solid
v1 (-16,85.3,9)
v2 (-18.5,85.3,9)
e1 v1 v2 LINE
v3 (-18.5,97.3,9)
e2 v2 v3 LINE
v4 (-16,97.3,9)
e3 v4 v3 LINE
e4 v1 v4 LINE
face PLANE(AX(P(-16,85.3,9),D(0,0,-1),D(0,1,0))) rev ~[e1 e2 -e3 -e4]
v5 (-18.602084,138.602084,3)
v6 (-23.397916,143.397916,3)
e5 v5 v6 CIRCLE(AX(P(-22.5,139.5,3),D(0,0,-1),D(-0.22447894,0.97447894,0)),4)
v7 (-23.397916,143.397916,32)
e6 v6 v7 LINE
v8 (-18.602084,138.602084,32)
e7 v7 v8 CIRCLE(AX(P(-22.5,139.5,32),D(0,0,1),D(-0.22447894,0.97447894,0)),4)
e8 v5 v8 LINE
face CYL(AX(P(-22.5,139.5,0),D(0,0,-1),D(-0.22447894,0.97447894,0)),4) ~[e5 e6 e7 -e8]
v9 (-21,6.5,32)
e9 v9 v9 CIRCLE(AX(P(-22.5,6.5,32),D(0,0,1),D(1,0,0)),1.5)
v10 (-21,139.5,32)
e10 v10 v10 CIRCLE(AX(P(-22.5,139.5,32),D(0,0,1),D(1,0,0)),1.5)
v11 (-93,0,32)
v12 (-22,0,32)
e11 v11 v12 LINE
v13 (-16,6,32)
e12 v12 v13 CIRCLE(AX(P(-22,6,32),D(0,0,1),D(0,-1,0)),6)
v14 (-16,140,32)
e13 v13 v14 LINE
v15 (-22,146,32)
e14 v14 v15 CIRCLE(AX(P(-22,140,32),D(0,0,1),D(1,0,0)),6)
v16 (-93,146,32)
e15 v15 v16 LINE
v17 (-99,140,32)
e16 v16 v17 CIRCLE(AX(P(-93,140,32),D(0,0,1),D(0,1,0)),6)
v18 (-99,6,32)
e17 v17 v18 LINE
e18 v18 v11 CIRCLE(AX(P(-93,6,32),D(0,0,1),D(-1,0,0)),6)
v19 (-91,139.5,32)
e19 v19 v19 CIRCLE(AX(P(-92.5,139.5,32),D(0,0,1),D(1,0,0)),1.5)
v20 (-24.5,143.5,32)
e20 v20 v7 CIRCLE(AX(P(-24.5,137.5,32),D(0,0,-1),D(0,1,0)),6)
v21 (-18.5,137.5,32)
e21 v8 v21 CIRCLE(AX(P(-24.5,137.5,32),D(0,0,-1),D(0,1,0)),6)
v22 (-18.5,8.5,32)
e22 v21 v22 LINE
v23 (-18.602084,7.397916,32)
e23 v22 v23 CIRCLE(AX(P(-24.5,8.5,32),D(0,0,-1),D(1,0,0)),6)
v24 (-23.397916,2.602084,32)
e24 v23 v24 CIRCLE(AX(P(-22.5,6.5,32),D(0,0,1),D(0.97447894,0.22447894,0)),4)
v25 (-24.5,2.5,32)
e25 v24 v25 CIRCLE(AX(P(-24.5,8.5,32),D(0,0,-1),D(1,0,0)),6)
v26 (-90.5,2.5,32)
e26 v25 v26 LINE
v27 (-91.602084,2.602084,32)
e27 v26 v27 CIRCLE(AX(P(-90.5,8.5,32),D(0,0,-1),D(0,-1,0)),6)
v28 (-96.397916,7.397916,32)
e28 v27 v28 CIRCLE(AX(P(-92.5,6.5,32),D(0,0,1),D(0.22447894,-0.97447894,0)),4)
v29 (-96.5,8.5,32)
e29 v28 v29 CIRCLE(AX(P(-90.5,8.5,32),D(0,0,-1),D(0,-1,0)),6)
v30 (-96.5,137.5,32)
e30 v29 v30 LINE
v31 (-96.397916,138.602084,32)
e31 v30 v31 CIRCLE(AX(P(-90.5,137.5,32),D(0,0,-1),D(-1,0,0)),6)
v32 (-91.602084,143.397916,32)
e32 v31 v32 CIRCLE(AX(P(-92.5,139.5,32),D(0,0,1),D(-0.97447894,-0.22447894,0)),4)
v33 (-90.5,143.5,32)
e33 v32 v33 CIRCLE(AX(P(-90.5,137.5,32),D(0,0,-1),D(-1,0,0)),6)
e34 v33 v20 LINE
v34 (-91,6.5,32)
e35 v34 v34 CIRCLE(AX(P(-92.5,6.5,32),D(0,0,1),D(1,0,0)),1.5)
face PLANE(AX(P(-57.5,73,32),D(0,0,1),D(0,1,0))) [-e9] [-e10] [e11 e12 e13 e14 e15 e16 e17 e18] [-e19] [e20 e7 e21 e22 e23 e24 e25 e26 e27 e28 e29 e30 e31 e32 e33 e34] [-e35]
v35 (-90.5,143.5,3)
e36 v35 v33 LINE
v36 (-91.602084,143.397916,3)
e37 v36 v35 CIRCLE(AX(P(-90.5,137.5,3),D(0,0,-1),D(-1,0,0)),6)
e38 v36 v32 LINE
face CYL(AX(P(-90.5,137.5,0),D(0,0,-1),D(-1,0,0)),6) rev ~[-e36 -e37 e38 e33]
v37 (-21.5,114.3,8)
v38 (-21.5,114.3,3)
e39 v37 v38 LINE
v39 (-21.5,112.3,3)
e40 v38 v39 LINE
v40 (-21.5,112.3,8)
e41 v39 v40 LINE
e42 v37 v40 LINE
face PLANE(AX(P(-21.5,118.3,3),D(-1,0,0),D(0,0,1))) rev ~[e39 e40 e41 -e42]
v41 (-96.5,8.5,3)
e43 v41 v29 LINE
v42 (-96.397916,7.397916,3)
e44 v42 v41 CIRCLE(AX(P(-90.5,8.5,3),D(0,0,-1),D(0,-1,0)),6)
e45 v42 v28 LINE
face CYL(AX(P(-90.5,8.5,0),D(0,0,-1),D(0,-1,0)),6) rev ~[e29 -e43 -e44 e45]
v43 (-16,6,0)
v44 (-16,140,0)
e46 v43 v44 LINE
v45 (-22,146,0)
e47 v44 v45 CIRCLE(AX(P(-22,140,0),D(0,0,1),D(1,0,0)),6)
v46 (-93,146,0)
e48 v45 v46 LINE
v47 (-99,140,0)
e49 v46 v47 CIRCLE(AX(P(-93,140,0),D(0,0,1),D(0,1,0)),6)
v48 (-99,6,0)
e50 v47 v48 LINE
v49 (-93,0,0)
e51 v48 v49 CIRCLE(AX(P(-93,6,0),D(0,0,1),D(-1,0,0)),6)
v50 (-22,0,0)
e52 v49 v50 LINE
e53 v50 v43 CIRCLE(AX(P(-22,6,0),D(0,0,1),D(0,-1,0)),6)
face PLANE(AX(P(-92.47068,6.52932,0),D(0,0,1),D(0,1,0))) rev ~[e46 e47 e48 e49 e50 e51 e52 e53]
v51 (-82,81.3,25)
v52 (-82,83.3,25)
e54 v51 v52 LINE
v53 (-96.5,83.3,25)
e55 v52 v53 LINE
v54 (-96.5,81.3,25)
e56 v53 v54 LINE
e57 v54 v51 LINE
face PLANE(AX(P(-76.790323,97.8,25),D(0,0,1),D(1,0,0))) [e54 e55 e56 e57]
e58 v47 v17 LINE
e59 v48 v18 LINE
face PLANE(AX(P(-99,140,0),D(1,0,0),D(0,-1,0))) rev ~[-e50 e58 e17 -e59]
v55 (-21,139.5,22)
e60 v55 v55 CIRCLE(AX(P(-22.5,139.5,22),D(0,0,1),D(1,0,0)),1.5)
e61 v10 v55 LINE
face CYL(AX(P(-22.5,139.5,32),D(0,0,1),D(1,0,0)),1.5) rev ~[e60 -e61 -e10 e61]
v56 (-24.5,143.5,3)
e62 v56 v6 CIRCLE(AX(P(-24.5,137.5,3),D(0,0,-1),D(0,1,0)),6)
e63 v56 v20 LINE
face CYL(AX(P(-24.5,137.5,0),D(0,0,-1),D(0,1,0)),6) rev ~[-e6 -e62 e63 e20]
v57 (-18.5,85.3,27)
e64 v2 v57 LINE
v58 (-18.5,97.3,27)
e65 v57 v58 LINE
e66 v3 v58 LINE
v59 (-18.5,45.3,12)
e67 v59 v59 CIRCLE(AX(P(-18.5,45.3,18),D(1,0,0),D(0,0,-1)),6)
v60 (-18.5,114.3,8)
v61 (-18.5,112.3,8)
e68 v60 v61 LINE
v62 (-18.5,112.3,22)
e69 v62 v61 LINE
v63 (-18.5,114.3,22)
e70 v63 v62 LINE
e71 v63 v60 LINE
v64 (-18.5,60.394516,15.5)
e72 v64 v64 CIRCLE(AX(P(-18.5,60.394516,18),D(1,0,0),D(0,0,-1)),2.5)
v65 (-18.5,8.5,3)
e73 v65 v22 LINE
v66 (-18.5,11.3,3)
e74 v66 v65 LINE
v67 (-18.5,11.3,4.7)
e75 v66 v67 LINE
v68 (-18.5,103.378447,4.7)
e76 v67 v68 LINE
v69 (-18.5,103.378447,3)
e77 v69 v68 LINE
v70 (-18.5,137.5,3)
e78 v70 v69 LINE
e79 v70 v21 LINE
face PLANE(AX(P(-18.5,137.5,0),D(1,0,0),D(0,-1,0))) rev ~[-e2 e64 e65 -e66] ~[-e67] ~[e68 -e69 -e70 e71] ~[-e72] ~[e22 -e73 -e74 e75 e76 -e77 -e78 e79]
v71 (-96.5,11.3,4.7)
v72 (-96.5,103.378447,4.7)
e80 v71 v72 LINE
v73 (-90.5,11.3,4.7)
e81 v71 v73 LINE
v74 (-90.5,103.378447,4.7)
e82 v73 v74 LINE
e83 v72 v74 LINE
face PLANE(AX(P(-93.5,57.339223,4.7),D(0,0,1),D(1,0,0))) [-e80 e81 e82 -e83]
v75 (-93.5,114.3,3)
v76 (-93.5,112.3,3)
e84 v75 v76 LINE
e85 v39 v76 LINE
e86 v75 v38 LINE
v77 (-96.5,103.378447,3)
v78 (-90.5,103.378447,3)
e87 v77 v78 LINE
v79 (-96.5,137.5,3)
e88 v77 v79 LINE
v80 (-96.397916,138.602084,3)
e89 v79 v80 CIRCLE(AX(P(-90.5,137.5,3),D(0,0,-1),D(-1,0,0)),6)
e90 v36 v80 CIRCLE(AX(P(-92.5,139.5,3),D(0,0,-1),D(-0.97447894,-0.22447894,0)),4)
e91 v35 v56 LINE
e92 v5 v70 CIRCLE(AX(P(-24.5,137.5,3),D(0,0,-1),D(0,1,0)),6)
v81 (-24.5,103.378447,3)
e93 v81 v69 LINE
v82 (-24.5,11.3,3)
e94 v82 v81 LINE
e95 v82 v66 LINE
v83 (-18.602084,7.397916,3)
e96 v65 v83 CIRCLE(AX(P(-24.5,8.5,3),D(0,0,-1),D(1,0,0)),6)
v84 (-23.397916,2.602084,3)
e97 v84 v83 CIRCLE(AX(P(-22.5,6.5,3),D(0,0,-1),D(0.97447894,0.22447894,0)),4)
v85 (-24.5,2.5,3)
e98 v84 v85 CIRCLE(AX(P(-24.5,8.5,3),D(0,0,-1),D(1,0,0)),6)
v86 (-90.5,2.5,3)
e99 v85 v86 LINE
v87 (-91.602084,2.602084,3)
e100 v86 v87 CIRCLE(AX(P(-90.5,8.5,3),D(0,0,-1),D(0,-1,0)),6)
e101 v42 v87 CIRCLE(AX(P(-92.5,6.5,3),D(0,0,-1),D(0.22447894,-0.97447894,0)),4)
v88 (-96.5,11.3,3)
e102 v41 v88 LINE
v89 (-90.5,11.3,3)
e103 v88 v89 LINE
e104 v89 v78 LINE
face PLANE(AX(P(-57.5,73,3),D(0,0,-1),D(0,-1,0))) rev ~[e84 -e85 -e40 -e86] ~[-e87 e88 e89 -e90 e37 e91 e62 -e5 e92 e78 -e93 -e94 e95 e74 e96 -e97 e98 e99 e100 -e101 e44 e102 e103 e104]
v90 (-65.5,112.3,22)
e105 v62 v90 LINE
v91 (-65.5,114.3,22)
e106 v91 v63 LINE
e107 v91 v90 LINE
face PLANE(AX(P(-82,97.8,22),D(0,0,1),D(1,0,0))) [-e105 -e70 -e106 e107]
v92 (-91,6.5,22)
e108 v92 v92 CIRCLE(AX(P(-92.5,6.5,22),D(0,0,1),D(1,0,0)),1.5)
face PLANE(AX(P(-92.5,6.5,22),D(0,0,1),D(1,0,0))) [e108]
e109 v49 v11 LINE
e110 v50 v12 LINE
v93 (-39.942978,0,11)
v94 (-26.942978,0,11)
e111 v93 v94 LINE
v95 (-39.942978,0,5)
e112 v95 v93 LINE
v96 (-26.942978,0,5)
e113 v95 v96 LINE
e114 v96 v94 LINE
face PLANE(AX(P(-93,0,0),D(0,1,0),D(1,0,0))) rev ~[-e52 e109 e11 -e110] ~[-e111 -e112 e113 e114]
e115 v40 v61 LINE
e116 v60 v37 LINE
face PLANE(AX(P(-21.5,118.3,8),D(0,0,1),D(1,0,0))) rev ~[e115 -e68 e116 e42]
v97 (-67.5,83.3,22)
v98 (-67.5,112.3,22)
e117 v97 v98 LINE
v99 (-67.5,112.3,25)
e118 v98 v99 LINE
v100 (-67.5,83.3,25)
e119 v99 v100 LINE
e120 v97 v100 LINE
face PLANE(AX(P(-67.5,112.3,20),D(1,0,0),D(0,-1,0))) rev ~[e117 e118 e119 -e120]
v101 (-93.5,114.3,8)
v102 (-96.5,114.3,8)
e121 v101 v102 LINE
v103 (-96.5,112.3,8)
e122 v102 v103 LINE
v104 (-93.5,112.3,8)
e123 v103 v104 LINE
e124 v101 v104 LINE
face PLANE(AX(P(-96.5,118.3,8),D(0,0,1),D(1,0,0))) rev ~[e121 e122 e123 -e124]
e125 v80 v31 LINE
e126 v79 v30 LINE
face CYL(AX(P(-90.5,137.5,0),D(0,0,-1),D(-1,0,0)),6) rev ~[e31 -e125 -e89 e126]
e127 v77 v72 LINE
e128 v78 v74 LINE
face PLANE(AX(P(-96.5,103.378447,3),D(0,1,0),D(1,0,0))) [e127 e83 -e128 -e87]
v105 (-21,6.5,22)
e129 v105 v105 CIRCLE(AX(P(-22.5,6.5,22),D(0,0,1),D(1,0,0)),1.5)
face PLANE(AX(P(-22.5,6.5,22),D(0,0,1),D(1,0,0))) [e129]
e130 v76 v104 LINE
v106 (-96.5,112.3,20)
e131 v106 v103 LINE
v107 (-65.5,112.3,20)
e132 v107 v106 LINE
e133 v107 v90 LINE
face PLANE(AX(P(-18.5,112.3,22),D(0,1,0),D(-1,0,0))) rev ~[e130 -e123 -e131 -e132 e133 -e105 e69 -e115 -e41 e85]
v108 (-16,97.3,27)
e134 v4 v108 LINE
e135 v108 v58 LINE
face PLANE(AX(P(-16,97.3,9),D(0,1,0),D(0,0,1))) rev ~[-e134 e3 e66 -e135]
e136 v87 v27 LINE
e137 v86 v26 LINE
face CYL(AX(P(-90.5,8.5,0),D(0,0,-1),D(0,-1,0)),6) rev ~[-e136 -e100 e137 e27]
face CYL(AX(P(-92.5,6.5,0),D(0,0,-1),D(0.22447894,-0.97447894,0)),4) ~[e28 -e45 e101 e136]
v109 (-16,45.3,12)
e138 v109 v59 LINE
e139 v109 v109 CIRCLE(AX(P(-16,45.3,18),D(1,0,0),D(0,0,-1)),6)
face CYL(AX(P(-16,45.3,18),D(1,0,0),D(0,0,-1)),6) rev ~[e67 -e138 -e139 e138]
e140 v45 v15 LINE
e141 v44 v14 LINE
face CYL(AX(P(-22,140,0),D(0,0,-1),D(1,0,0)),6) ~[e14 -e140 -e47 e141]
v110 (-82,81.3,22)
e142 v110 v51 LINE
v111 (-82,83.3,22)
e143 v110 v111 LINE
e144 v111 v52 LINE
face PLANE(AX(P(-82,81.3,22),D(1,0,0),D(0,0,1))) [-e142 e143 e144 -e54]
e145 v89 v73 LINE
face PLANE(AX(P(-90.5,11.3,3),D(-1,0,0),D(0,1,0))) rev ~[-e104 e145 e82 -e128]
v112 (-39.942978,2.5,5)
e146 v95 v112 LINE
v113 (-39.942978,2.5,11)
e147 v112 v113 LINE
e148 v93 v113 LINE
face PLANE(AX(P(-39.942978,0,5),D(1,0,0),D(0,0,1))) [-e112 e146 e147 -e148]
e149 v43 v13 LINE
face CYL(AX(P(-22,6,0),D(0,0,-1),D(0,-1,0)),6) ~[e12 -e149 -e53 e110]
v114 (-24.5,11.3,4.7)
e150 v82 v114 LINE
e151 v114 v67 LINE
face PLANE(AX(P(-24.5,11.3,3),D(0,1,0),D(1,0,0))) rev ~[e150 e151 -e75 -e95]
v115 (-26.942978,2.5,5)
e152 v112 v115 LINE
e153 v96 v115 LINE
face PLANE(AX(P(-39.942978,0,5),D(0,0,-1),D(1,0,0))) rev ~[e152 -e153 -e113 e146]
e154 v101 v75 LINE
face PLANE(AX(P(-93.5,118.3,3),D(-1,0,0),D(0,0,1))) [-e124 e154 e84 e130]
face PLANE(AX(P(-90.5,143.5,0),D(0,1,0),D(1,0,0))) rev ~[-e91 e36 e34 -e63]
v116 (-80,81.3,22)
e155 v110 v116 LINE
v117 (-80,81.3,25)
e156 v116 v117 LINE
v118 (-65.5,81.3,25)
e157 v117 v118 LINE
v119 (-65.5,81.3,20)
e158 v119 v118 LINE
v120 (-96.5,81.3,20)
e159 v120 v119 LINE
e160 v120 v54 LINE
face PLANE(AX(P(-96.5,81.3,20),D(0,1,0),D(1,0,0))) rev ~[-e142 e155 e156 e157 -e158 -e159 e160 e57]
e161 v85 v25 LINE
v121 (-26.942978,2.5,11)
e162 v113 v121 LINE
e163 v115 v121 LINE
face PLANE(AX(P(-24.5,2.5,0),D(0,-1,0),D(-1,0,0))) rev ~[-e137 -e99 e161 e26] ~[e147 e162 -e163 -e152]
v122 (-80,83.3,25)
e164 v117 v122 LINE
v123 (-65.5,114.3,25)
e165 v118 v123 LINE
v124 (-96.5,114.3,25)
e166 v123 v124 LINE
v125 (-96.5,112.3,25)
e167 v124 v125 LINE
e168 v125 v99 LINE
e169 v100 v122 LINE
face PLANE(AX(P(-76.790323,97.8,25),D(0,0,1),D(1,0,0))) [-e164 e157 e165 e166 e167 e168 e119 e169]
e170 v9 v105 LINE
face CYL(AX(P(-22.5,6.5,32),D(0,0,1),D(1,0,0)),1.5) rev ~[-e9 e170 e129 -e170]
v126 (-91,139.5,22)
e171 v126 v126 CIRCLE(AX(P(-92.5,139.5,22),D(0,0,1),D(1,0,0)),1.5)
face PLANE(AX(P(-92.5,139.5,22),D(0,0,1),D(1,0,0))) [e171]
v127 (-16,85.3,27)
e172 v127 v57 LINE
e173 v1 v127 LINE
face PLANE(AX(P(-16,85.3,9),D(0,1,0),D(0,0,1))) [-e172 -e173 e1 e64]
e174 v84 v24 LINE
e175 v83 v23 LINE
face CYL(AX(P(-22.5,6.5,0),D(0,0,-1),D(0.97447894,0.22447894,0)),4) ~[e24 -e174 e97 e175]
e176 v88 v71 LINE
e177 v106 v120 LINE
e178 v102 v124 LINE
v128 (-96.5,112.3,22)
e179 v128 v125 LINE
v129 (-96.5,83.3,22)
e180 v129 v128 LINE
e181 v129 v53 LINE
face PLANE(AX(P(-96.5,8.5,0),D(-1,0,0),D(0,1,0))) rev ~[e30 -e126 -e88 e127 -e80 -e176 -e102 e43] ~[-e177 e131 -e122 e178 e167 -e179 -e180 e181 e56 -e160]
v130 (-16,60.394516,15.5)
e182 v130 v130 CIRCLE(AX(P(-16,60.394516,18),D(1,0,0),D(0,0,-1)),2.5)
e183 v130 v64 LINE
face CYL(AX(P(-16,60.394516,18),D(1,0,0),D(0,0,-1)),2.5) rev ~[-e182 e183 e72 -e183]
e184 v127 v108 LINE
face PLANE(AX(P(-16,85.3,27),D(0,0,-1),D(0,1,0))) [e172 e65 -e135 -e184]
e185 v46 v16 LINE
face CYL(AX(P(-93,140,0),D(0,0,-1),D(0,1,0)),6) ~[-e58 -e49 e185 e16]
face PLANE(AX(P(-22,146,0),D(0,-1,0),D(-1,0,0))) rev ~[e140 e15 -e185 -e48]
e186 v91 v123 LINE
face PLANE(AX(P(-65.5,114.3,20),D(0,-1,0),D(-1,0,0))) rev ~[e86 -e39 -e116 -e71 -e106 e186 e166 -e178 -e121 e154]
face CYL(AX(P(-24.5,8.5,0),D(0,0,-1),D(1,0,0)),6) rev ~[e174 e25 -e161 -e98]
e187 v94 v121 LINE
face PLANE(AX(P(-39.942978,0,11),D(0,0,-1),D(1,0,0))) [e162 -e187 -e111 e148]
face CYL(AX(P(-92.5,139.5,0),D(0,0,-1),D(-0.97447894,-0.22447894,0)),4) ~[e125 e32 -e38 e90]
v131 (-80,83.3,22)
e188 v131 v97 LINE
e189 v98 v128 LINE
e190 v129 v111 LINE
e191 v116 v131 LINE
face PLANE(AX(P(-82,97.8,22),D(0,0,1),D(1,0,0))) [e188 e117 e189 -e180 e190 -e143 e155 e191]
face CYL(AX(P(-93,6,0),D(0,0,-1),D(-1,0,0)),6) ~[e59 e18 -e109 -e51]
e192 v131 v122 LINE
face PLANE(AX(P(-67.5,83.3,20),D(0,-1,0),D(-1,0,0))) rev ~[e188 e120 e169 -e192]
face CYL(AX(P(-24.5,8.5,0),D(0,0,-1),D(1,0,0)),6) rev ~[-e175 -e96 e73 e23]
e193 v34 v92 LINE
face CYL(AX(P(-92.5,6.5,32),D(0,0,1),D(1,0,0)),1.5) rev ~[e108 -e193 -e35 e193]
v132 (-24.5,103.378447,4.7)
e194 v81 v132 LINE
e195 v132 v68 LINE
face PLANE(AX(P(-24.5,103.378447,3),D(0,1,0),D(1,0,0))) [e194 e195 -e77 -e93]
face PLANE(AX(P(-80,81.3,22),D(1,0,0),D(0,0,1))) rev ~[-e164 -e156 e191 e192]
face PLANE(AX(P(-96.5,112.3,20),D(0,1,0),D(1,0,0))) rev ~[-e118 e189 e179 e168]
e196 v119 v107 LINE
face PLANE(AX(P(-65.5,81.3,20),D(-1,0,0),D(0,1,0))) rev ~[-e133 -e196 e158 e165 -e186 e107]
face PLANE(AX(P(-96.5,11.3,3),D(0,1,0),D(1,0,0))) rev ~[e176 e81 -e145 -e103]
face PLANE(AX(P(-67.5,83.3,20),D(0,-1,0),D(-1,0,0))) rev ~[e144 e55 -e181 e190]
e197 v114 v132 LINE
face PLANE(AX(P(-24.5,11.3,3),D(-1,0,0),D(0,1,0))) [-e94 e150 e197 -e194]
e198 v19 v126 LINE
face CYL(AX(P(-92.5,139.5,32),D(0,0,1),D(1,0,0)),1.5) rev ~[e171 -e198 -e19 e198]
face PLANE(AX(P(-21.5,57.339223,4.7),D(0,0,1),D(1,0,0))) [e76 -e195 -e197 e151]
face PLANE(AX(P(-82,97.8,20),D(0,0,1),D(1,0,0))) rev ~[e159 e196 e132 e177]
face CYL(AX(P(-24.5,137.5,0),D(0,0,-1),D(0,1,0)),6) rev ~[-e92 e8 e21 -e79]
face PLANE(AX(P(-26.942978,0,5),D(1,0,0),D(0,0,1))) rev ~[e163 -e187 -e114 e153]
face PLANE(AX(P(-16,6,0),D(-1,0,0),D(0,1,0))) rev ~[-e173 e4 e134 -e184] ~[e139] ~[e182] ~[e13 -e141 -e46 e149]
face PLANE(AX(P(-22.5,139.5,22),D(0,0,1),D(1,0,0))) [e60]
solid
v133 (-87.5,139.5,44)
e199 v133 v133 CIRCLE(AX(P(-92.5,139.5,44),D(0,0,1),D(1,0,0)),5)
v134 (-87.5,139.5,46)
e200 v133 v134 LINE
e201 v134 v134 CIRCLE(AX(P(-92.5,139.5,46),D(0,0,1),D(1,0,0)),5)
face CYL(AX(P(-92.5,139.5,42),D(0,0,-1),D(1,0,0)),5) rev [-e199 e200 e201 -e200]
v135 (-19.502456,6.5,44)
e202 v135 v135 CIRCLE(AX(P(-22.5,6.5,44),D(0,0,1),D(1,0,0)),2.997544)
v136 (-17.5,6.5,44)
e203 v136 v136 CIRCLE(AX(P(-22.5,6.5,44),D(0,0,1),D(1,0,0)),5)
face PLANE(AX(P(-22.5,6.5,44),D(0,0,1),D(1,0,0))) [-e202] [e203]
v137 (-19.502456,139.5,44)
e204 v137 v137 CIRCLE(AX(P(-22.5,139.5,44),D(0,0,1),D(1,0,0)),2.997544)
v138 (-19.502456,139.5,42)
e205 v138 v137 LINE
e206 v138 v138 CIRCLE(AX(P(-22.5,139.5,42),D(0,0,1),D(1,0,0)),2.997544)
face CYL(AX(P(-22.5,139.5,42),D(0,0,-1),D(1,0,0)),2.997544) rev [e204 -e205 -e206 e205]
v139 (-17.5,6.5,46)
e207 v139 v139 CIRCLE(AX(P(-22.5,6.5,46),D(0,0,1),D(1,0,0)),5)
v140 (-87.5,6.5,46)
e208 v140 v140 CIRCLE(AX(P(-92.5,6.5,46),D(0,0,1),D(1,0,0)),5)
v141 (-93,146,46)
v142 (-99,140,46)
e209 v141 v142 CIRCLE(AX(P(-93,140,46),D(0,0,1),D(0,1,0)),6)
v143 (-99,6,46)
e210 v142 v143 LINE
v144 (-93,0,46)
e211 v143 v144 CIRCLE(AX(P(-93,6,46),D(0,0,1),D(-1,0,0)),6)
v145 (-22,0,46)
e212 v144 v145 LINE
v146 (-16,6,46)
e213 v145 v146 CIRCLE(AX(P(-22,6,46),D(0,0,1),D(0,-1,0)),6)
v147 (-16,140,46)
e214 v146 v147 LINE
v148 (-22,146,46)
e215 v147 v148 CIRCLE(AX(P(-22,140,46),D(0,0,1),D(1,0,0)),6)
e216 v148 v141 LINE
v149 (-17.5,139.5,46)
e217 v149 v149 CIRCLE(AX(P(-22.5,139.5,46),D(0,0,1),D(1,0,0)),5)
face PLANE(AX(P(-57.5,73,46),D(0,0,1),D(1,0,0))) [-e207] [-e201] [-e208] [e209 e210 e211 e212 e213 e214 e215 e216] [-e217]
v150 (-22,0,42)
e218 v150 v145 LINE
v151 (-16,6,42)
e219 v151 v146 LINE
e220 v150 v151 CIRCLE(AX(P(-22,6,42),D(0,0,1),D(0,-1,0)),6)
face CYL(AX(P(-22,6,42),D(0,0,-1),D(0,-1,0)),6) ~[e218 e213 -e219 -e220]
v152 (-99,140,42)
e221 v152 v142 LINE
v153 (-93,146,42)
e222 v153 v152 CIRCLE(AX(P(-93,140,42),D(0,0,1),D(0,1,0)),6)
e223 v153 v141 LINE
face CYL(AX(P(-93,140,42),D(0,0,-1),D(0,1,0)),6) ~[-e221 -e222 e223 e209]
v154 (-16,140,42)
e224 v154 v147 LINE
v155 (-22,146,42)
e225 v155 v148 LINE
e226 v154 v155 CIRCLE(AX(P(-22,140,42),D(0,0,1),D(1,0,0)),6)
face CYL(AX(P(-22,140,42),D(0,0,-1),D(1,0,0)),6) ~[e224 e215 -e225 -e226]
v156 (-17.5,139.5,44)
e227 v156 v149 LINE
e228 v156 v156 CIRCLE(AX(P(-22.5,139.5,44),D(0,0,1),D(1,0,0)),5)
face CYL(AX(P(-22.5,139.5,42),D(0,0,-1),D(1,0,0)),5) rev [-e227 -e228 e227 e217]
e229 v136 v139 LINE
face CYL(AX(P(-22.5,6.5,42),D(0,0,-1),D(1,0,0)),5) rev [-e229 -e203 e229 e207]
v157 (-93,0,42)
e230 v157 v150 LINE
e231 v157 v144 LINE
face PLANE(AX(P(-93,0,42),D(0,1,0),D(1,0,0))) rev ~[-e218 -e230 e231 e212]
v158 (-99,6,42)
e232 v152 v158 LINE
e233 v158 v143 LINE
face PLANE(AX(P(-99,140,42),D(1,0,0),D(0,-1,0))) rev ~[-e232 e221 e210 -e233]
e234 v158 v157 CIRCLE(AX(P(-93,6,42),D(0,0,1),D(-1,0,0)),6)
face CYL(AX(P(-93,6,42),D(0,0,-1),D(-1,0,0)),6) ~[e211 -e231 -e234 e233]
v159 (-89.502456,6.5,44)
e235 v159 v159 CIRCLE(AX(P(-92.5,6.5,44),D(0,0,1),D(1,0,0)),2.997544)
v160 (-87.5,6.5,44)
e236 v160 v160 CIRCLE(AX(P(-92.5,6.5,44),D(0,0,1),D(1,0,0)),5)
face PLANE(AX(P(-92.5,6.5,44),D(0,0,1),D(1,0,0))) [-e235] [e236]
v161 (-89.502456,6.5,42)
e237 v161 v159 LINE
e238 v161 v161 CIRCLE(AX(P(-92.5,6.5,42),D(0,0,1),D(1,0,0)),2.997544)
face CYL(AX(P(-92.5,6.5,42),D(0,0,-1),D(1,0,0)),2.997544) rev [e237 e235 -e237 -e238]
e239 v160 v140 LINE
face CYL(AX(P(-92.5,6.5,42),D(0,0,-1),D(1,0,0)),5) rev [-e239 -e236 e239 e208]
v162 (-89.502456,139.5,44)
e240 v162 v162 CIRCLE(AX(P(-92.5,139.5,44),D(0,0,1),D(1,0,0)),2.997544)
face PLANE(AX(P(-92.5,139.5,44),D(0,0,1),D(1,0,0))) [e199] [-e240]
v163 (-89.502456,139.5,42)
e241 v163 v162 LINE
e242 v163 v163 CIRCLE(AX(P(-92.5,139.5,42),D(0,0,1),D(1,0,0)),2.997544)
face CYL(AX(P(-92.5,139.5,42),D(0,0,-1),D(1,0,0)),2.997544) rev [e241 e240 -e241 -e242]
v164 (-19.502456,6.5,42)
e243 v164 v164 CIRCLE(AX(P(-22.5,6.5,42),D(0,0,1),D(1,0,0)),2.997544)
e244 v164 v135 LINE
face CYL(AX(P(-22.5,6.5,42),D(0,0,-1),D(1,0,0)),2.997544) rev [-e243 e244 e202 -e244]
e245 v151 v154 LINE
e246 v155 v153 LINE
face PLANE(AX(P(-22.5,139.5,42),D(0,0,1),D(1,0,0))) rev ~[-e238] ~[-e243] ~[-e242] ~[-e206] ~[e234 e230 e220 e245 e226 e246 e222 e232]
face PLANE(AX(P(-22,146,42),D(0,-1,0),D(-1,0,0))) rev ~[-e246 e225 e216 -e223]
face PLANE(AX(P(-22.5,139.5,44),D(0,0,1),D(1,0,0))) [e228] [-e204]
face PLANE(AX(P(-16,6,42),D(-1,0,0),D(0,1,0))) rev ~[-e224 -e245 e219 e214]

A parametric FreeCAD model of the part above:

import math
import FreeCAD as App
import Part
import Sketcher


def add_polygon(sketch, points):
    """Adds a closed chain of lines whose ends are joined by coincident constraints."""
    first, n = sketch.GeometryCount, len(points)
    for a, b in zip(points, points[1:] + points[:1]):
        sketch.addGeometry(Part.LineSegment(App.Vector(*a, 0), App.Vector(*b, 0)), False)
    for i in range(n):
        sketch.addConstraint(Sketcher.Constraint("Coincident", first + i, 2, first + (i + 1) % n, 1))

doc = App.newDocument("Part")
body = doc.addObject("PartDesign::Body", "Body")

sketch1 = body.newObject("Sketcher::SketchObject", "Sketch")
sketch1.AttachmentSupport = (doc.getObject("XY_Plane"), [""])
sketch1.MapMode = "FlatFace"
sketch1.addGeometry([
    Part.LineSegment(App.Vector(-90, 2, 0), App.Vector(-24, 2, 0)),
    Part.ArcOfCircle(Part.Circle(App.Vector(-24, 8, 0), App.Vector(0, 0, 1), 6), math.radians(-90), math.radians(0)),
    Part.LineSegment(App.Vector(-18, 8, 0), App.Vector(-18, 138, 0)),
    Part.ArcOfCircle(Part.Circle(App.Vector(-24, 138, 0), App.Vector(0, 0, 1), 6), math.radians(0), math.radians(90)),
    Part.LineSegment(App.Vector(-24, 144, 0), App.Vector(-90, 144, 0)),
    Part.ArcOfCircle(Part.Circle(App.Vector(-90, 138, 0), App.Vector(0, 0, 1), 6), math.radians(90), math.radians(180)),
    Part.LineSegment(App.Vector(-96, 138, 0), App.Vector(-96, 8, 0)),
    Part.ArcOfCircle(Part.Circle(App.Vector(-90, 8, 0), App.Vector(0, 0, 1), 6), math.radians(180), math.radians(270)),
], False)
sketch1.addConstraint([
    Sketcher.Constraint("Tangent", 0, 2, 1, 1),
    Sketcher.Constraint("Tangent", 1, 2, 2, 1),
    Sketcher.Constraint("Tangent", 2, 2, 3, 1),
    Sketcher.Constraint("Tangent", 3, 2, 4, 1),
    Sketcher.Constraint("Tangent", 4, 2, 5, 1),
    Sketcher.Constraint("Tangent", 5, 2, 6, 1),
    Sketcher.Constraint("Tangent", 6, 2, 7, 1),
    Sketcher.Constraint("Tangent", 7, 2, 0, 1),
    Sketcher.Constraint("Horizontal", 0),
    Sketcher.Constraint("Vertical", 2),
    Sketcher.Constraint("Horizontal", 4),
    Sketcher.Constraint("Vertical", 6),
    Sketcher.Constraint("Equal", 1, 3),
    Sketcher.Constraint("Equal", 3, 5),
    Sketcher.Constraint("Equal", 5, 7),
    Sketcher.Constraint("Radius", 1, 6.0),
    Sketcher.Constraint("DistanceX", 0, 1, 0, 2, 66.0),
    Sketcher.Constraint("DistanceY", 2, 1, 2, 2, 129.0),
    Sketcher.Constraint("DistanceX", 1, 3, -1, 1, 24.5),
    Sketcher.Constraint("DistanceY", -1, 1, 1, 3, 8.5),
])
pad1 = body.newObject("PartDesign::Pad", "Pad")
pad1.Profile = sketch1
pad1.Length = 3

sketch2 = body.newObject("Sketcher::SketchObject", "Sketch001")
sketch2.AttachmentSupport = (doc.getObject("XY_Plane"), [""])
sketch2.MapMode = "FlatFace"
sketch2.addGeometry([
    Part.LineSegment(App.Vector(-16, 6, 0), App.Vector(-16, 140, 0)),
    Part.ArcOfCircle(Part.Circle(App.Vector(-22, 140, 0), App.Vector(0, 0, 1), 6), math.radians(0), math.radians(90)),
    Part.LineSegment(App.Vector(-22, 146, 0), App.Vector(-93, 146, 0)),
    Part.ArcOfCircle(Part.Circle(App.Vector(-93, 140, 0), App.Vector(0, 0, 1), 6), math.radians(90), math.radians(180)),
    Part.LineSegment(App.Vector(-99, 140, 0), App.Vector(-99, 6, 0)),
    Part.ArcOfCircle(Part.Circle(App.Vector(-93, 6, 0), App.Vector(0, 0, 1), 6), math.radians(180), math.radians(270)),
    Part.LineSegment(App.Vector(-93, 0, 0), App.Vector(-22, 0, 0)),
    Part.ArcOfCircle(Part.Circle(App.Vector(-22, 6, 0), App.Vector(0, 0, 1), 6), math.radians(-90), math.radians(0)),
    Part.ArcOfCircle(Part.Circle(App.Vector(-24, 8, 0), App.Vector(0, 0, 1), 6), math.radians(-90), math.radians(0)),
    Part.LineSegment(App.Vector(-24, 2, 0), App.Vector(-90, 2, 0)),
    Part.ArcOfCircle(Part.Circle(App.Vector(-90, 8, 0), App.Vector(0, 0, 1), 6), math.radians(180), math.radians(270)),
    Part.LineSegment(App.Vector(-96, 8, 0), App.Vector(-96, 138, 0)),
    Part.ArcOfCircle(Part.Circle(App.Vector(-90, 138, 0), App.Vector(0, 0, 1), 6), math.radians(90), math.radians(180)),
    Part.LineSegment(App.Vector(-90, 144, 0), App.Vector(-24, 144, 0)),
    Part.ArcOfCircle(Part.Circle(App.Vector(-24, 138, 0), App.Vector(0, 0, 1), 6), math.radians(0), math.radians(90)),
    Part.LineSegment(App.Vector(-18, 138, 0), App.Vector(-18, 8, 0)),
], False)
sketch2.addConstraint([
    Sketcher.Constraint("Tangent", 0, 2, 1, 1),
    Sketcher.Constraint("Tangent", 1, 2, 2, 1),
    Sketcher.Constraint("Tangent", 2, 2, 3, 1),
    Sketcher.Constraint("Tangent", 3, 2, 4, 1),
    Sketcher.Constraint("Tangent", 4, 2, 5, 1),
    Sketcher.Constraint("Tangent", 5, 2, 6, 1),
    Sketcher.Constraint("Tangent", 6, 2, 7, 1),
    Sketcher.Constraint("Tangent", 7, 2, 0, 1),
    Sketcher.Constraint("Tangent", 8, 1, 9, 1),
    Sketcher.Constraint("Tangent", 9, 2, 10, 2),
    Sketcher.Constraint("Tangent", 10, 1, 11, 1),
    Sketcher.Constraint("Tangent", 11, 2, 12, 2),
    Sketcher.Constraint("Tangent", 12, 1, 13, 1),
    Sketcher.Constraint("Tangent", 13, 2, 14, 2),
    Sketcher.Constraint("Tangent", 14, 1, 15, 1),
    Sketcher.Constraint("Tangent", 15, 2, 8, 2),
    Sketcher.Constraint("Vertical", 0),
    Sketcher.Constraint("Horizontal", 2),
    Sketcher.Constraint("Vertical", 4),
    Sketcher.Constraint("Horizontal", 6),
    Sketcher.Constraint("Horizontal", 9),
    Sketcher.Constraint("Vertical", 11),
    Sketcher.Constraint("Horizontal", 13),
    Sketcher.Constraint("Vertical", 15),
    Sketcher.Constraint("Equal", 1, 3),
    Sketcher.Constraint("Equal", 3, 5),
    Sketcher.Constraint("Equal", 5, 7),
    Sketcher.Constraint("Equal", 7, 8),
    Sketcher.Constraint("Equal", 8, 10),
    Sketcher.Constraint("Equal", 10, 12),
    Sketcher.Constraint("Equal", 12, 14),
    Sketcher.Constraint("PointOnObject", 5, 2, -1),
    Sketcher.Constraint("Radius", 1, 6.0),
    Sketcher.Constraint("DistanceX", 2, 2, 2, 1, 71.0),
    Sketcher.Constraint("DistanceX", 9, 2, 9, 1, 66.0),
    Sketcher.Constraint("DistanceY", 0, 1, 0, 2, 134.0),
    Sketcher.Constraint("DistanceY", 11, 1, 11, 2, 129.0),
    Sketcher.Constraint("DistanceX", 1, 3, -1, 1, 22.0),
    Sketcher.Constraint("DistanceX", 8, 3, -1, 1, 24.5),
    Sketcher.Constraint("DistanceY", -1, 1, 8, 3, 8.5),
])
pad2 = body.newObject("PartDesign::Pad", "Pad001")
pad2.Profile = sketch2
pad2.Length = 32

sketch3 = body.newObject("Sketcher::SketchObject", "Sketch002")
sketch3.AttachmentSupport = (doc.getObject("XY_Plane"), [""])
sketch3.MapMode = "FlatFace"
sketch3.addGeometry([
    Part.ArcOfCircle(Part.Circle(App.Vector(-90.5, 8.5, 0), App.Vector(0, 0, 1), 6), math.radians(-169), math.radians(-101)),
    Part.ArcOfCircle(Part.Circle(App.Vector(-92.5, 6.5, 0), App.Vector(0, 0, 1), 4), math.radians(-77), math.radians(167)),
    Part.ArcOfCircle(Part.Circle(App.Vector(-22.5, 6.5, 0), App.Vector(0, 0, 1), 4), math.radians(13), math.radians(257)),
    Part.ArcOfCircle(Part.Circle(App.Vector(-24.5, 8.5, 0), App.Vector(0, 0, 1), 6), math.radians(-79), math.radians(-11)),
    Part.ArcOfCircle(Part.Circle(App.Vector(-90.5, 137.5, 0), App.Vector(0, 0, 1), 6), math.radians(101), math.radians(169)),
    Part.ArcOfCircle(Part.Circle(App.Vector(-92.5, 139.5, 0), App.Vector(0, 0, 1), 4), math.radians(-167), math.radians(77)),
    Part.ArcOfCircle(Part.Circle(App.Vector(-22.5, 139.5, 0), App.Vector(0, 0, 1), 4), math.radians(103), math.radians(347)),
    Part.ArcOfCircle(Part.Circle(App.Vector(-24.5, 137.5, 0), App.Vector(0, 0, 1), 6), math.radians(11), math.radians(79)),
], False)
sketch3.addConstraint([
    Sketcher.Constraint("Coincident", 0, 1, 1, 2),
    Sketcher.Constraint("Coincident", 1, 1, 0, 2),
    Sketcher.Constraint("Coincident", 2, 1, 3, 2),
    Sketcher.Constraint("Coincident", 3, 1, 2, 2),
    Sketcher.Constraint("Coincident", 4, 1, 5, 2),
    Sketcher.Constraint("Coincident", 5, 1, 4, 2),
    Sketcher.Constraint("Coincident", 6, 1, 7, 2),
    Sketcher.Constraint("Coincident", 7, 1, 6, 2),
    Sketcher.Constraint("Equal", 1, 2),
    Sketcher.Constraint("Equal", 0, 3),
    Sketcher.Constraint("Equal", 3, 4),
    Sketcher.Constraint("Equal", 2, 5),
    Sketcher.Constraint("Equal", 5, 6),
    Sketcher.Constraint("Equal", 4, 7),
    Sketcher.Constraint("Horizontal", 1, 3, 2, 3),
    Sketcher.Constraint("Horizontal", 0, 3, 3, 3),
    Sketcher.Constraint("Horizontal", 5, 3, 6, 3),
    Sketcher.Constraint("Horizontal", 4, 3, 7, 3),
    Sketcher.Constraint("Horizontal", 0, 1, 2, 1),
    Sketcher.Constraint("Horizontal", 4, 1, 6, 1),
    Sketcher.Constraint("Vertical", 0, 3, 4, 3),
    Sketcher.Constraint("Vertical", 1, 3, 5, 3),
    Sketcher.Constraint("Vertical", 2, 3, 6, 3),
    Sketcher.Constraint("Vertical", 1, 1, 4, 1),
    Sketcher.Constraint("Radius", 0, 6.0),
    Sketcher.Constraint("Radius", 1, 4.0),
    Sketcher.Constraint("DistanceX", 1, 3, 0, 3, 2.0),
    Sketcher.Constraint("DistanceY", 1, 3, 0, 3, 2.0),
    Sketcher.Constraint("DistanceX", 0, 3, 2, 3, 68.0),
    Sketcher.Constraint("DistanceY", 0, 3, 4, 3, 129.0),
    Sketcher.Constraint("DistanceX", 0, 3, -1, 1, 90.5),
    Sketcher.Constraint("DistanceY", -1, 1, 0, 3, 8.5),
])
pad3 = body.newObject("PartDesign::Pad", "Pad002")
pad3.Profile = sketch3
pad3.Length = 32

sketch4 = body.newObject("Sketcher::SketchObject", "Sketch003")
sketch4.AttachmentSupport = (doc.getObject("XY_Plane"), [""])
sketch4.MapMode = "FlatFace"
sketch4.AttachmentOffset = App.Placement(App.Vector(0, 0, 22), App.Rotation())
add_polygon(sketch4, [(-18.5, 114.3), (-18.5, 112.3), (-96.5, 112.3), (-96.5, 114.3)])
sketch4.addConstraint([
    Sketcher.Constraint("Vertical", 0),
    Sketcher.Constraint("Horizontal", 1),
    Sketcher.Constraint("Vertical", 2),
    Sketcher.Constraint("Horizontal", 3),
    Sketcher.Constraint("DistanceX", 1, 2, 1, 1, 78.0),
    Sketcher.Constraint("DistanceY", 0, 2, 0, 1, 2.0),
    Sketcher.Constraint("DistanceX", 0, 2, -1, 1, 18.5),
    Sketcher.Constraint("DistanceY", -1, 1, 0, 2, 112.3),
])
pad4 = body.newObject("PartDesign::Pad", "Pad003")
pad4.Profile = sketch4
pad4.Length = 19
pad4.Reversed = True

sketch5 = body.newObject("Sketcher::SketchObject", "Sketch004")
sketch5.AttachmentSupport = (doc.getObject("XZ_Plane"), [""])
sketch5.MapMode = "FlatFace"
sketch5.AttachmentOffset = App.Placement(App.Vector(0, 0, -112.3), App.Rotation())
add_polygon(sketch5, [(-96.5, 8), (-96.5, 3), (-93.5, 3), (-93.5, 8)])
add_polygon(sketch5, [(-21.5, 8), (-21.5, 3), (-18.5, 3), (-18.5, 8)])
sketch5.addConstraint([
    Sketcher.Constraint("Vertical", 0),
    Sketcher.Constraint("Horizontal", 1),
    Sketcher.Constraint("Vertical", 2),
    Sketcher.Constraint("Horizontal", 3),
    Sketcher.Constraint("Vertical", 4),
    Sketcher.Constraint("Horizontal", 5),
    Sketcher.Constraint("Vertical", 6),
    Sketcher.Constraint("Horizontal", 7),
    Sketcher.Constraint("Horizontal", 1, 2, 4, 2),
    Sketcher.Constraint("Horizontal", 3, 2, 6, 2),
    Sketcher.Constraint("Equal", 3, 5),
    Sketcher.Constraint("DistanceX", 1, 1, 1, 2, 3.0),
    Sketcher.Constraint("DistanceY", 0, 2, 0, 1, 5.0),
    Sketcher.Constraint("DistanceY", -1, 1, 0, 2, 3.0),
    Sketcher.Constraint("DistanceX", 1, 2, 4, 2, 72.0),
    Sketcher.Constraint("DistanceX", 0, 2, -1, 1, 96.5),
])
pocket1 = body.newObject("PartDesign::Pocket", "Pocket")
pocket1.Profile = sketch5
pocket1.Type = "TwoLengths"
pocket1.Length = 3
pocket1.Length2 = 6
pocket1.Reversed = True

sketch6 = body.newObject("Sketcher::SketchObject", "Sketch005")
sketch6.AttachmentSupport = (doc.getObject("XY_Plane"), [""])
sketch6.MapMode = "FlatFace"
sketch6.AttachmentOffset = App.Placement(App.Vector(0, 0, 3), App.Rotation())
add_polygon(sketch6, [(-24, 103), (-24, 11), (-18, 11), (-18, 103)])
add_polygon(sketch6, [(-96, 103), (-96, 11), (-90, 11), (-90, 103)])
sketch6.addConstraint([
    Sketcher.Constraint("Vertical", 0),
    Sketcher.Constraint("Horizontal", 1),
    Sketcher.Constraint("Vertical", 2),
    Sketcher.Constraint("Horizontal", 3),
    Sketcher.Constraint("Vertical", 4),
    Sketcher.Constraint("Horizontal", 5),
    Sketcher.Constraint("Vertical", 6),
    Sketcher.Constraint("Horizontal", 7),
    Sketcher.Constraint("Horizontal", 1, 2, 4, 2),
    Sketcher.Constraint("Horizontal", 3, 2, 6, 2),
    Sketcher.Constraint("Equal", 3, 5),
    Sketcher.Constraint("DistanceX", 1, 1, 1, 2, 6.0),
    Sketcher.Constraint("DistanceX", 4, 2, 0, 2, 72.0),
    Sketcher.Constraint("DistanceX", 0, 2, -1, 1, 24.5),
    Sketcher.Constraint("DistanceY", -1, 1, 0, 2, 11.3),
    Sketcher.Constraint("DistanceY", 0, 2, 0, 1, 92.078447),
])
pad5 = body.newObject("PartDesign::Pad", "Pad004")
pad5.Profile = sketch6
pad5.Length = 1.7

sketch7 = body.newObject("Sketcher::SketchObject", "Sketch006")
sketch7.AttachmentSupport = (doc.getObject("YZ_Plane"), [""])
sketch7.MapMode = "FlatFace"
sketch7.AttachmentOffset = App.Placement(App.Vector(0, 0, -16), App.Rotation())
sketch7.addGeometry(Part.Circle(App.Vector(45.3, 18, 0), App.Vector(0, 0, 1), 6), False)
sketch7.addGeometry(Part.Circle(App.Vector(60.4, 18, 0), App.Vector(0, 0, 1), 2.5), False)
add_polygon(sketch7, [(85.3, 27), (85.3, 9), (97.3, 9), (97.3, 27)])
sketch7.addConstraint([
    Sketcher.Constraint("Vertical", 2),
    Sketcher.Constraint("Horizontal", 3),
    Sketcher.Constraint("Vertical", 4),
    Sketcher.Constraint("Horizontal", 5),
    Sketcher.Constraint("Horizontal", 0, 3, 1, 3),
    Sketcher.Constraint("Diameter", 0, 12.0),
    Sketcher.Constraint("Diameter", 1, 5.0),
    Sketcher.Constraint("DistanceX", 3, 1, 3, 2, 12.0),
    Sketcher.Constraint("DistanceY", 2, 2, 2, 1, 18.0),
    Sketcher.Constraint("DistanceY", -1, 1, 0, 3, 18.0),
    Sketcher.Constraint("DistanceY", -1, 1, 2, 2, 9.0),
    Sketcher.Constraint("DistanceX", 0, 3, 2, 2, 40.0),
    Sketcher.Constraint("DistanceX", -1, 1, 0, 3, 45.3),
    Sketcher.Constraint("DistanceX", -1, 1, 1, 3, 60.394516),
])
pocket2 = body.newObject("PartDesign::Pocket", "Pocket001")
pocket2.Profile = sketch7
pocket2.Length = 4

sketch8 = body.newObject("Sketcher::SketchObject", "Sketch007")
sketch8.AttachmentSupport = (doc.getObject("XZ_Plane"), [""])
sketch8.MapMode = "FlatFace"
add_polygon(sketch8, [(-40, 11), (-40, 5), (-27, 5), (-27, 11)])
sketch8.addConstraint([
    Sketcher.Constraint("Vertical", 0),
    Sketcher.Constraint("Horizontal", 1),
    Sketcher.Constraint("Vertical", 2),
    Sketcher.Constraint("Horizontal", 3),
    Sketcher.Constraint("DistanceX", 1, 1, 1, 2, 13.0),
    Sketcher.Constraint("DistanceY", 0, 2, 0, 1, 6.0),
    Sketcher.Constraint("DistanceY", -1, 1, 0, 2, 5.0),
    Sketcher.Constraint("DistanceX", 0, 2, -1, 1, 39.942978),
])
pocket3 = body.newObject("PartDesign::Pocket", "Pocket002")
pocket3.Profile = sketch8
pocket3.Length = 4

sketch9 = body.newObject("Sketcher::SketchObject", "Sketch008")
sketch9.AttachmentSupport = (doc.getObject("XY_Plane"), [""])
sketch9.MapMode = "FlatFace"
sketch9.AttachmentOffset = App.Placement(App.Vector(0, 0, 22), App.Rotation())
add_polygon(sketch9, [(-96, 112), (-96, 83), (-68, 83), (-68, 112)])
sketch9.addConstraint([
    Sketcher.Constraint("Vertical", 0),
    Sketcher.Constraint("Horizontal", 1),
    Sketcher.Constraint("Vertical", 2),
    Sketcher.Constraint("Horizontal", 3),
    Sketcher.Constraint("Equal", 3, 0),
    Sketcher.Constraint("DistanceX", 1, 1, 1, 2, 29.0),
    Sketcher.Constraint("DistanceX", 0, 2, -1, 1, 96.5),
    Sketcher.Constraint("DistanceY", -1, 1, 0, 2, 83.3),
])
pad6 = body.newObject("PartDesign::Pad", "Pad005")
pad6.Profile = sketch9
pad6.Length = 2
pad6.Reversed = True

sketch10 = body.newObject("Sketcher::SketchObject", "Sketch009")
sketch10.AttachmentSupport = (doc.getObject("XY_Plane"), [""])
sketch10.MapMode = "FlatFace"
sketch10.AttachmentOffset = App.Placement(App.Vector(0, 0, 20), App.Rotation())
add_polygon(sketch10, [(-96.5, 114.3), (-96.5, 112.3), (-67.5, 112.3), (-67.5, 83.3), (-96.5, 83.3), (-96.5, 81.3), (-65.5, 81.3), (-65.5, 114.3)])
sketch10.addConstraint([
    Sketcher.Constraint("Vertical", 0),
    Sketcher.Constraint("Horizontal", 1),
    Sketcher.Constraint("Vertical", 2),
    Sketcher.Constraint("Horizontal", 3),
    Sketcher.Constraint("Vertical", 4),
    Sketcher.Constraint("Horizontal", 5),
    Sketcher.Constraint("Vertical", 6),
    Sketcher.Constraint("Horizontal", 7),
    Sketcher.Constraint("Vertical", 0, 2, 3, 2),
    Sketcher.Constraint("Equal", 3, 2),
    Sketcher.Constraint("Equal", 0, 4),
    Sketcher.Constraint("DistanceX", 1, 1, 1, 2, 29.0),
    Sketcher.Constraint("DistanceX", 5, 1, 5, 2, 31.0),
    Sketcher.Constraint("DistanceY", 0, 2, 0, 1, 2.0),
    Sketcher.Constraint("DistanceX", 0, 2, -1, 1, 96.5),
    Sketcher.Constraint("DistanceY", -1, 1, 0, 2, 112.3),
])
pad7 = body.newObject("PartDesign::Pad", "Pad006")
pad7.Profile = sketch10
pad7.Length = 5

sketch11 = body.newObject("Sketcher::SketchObject", "Sketch010")
sketch11.AttachmentSupport = (doc.getObject("XZ_Plane"), [""])
sketch11.MapMode = "FlatFace"
sketch11.AttachmentOffset = App.Placement(App.Vector(0, 0, -81.3), App.Rotation())
add_polygon(sketch11, [(-82, 25), (-82, 22), (-80, 22), (-80, 25)])
sketch11.addConstraint([
    Sketcher.Constraint("Vertical", 0),
    Sketcher.Constraint("Horizontal", 1),
    Sketcher.Constraint("Vertical", 2),
    Sketcher.Constraint("Horizontal", 3),
    Sketcher.Constraint("DistanceX", 1, 1, 1, 2, 2.0),
    Sketcher.Constraint("DistanceY", 0, 2, 0, 1, 3.0),
    Sketcher.Constraint("DistanceX", 0, 2, -1, 1, 82.0),
    Sketcher.Constraint("DistanceY", -1, 1, 0, 2, 22.0),
])
pocket4 = body.newObject("PartDesign::Pocket", "Pocket003")
pocket4.Profile = sketch11
pocket4.Length = 4

sketch12 = body.newObject("Sketcher::SketchObject", "Sketch011")
sketch12.AttachmentSupport = (doc.getObject("XY_Plane"), [""])
sketch12.MapMode = "FlatFace"
sketch12.AttachmentOffset = App.Placement(App.Vector(0, 0, 32), App.Rotation())
sketch12.addGeometry([
    Part.Circle(App.Vector(-92.5, 139.5, 0), App.Vector(0, 0, 1), 1.5),
    Part.Circle(App.Vector(-22.5, 139.5, 0), App.Vector(0, 0, 1), 1.5),
    Part.Circle(App.Vector(-22.5, 6.5, 0), App.Vector(0, 0, 1), 1.5),
    Part.Circle(App.Vector(-92.5, 6.5, 0), App.Vector(0, 0, 1), 1.5),
], False)
sketch12.addConstraint([
    Sketcher.Constraint("Equal", 0, 1),
    Sketcher.Constraint("Equal", 1, 2),
    Sketcher.Constraint("Equal", 2, 3),
    Sketcher.Constraint("Horizontal", 0, 3, 1, 3),
    Sketcher.Constraint("Horizontal", 2, 3, 3, 3),
    Sketcher.Constraint("Vertical", 1, 3, 2, 3),
    Sketcher.Constraint("Vertical", 0, 3, 3, 3),
    Sketcher.Constraint("Diameter", 0, 3.0),
    Sketcher.Constraint("DistanceX", 0, 3, 1, 3, 70.0),
    Sketcher.Constraint("DistanceY", 2, 3, 1, 3, 133.0),
    Sketcher.Constraint("DistanceX", 0, 3, -1, 1, 92.5),
    Sketcher.Constraint("DistanceY", -1, 1, 0, 3, 139.5),
])
pocket5 = body.newObject("PartDesign::Pocket", "Pocket004")
pocket5.Profile = sketch12
pocket5.Length = 10
body2 = doc.addObject("PartDesign::Body", "Body001")

sketch13 = body2.newObject("Sketcher::SketchObject", "Sketch012")
sketch13.AttachmentSupport = (doc.getObject("XY_Plane001"), [""])
sketch13.MapMode = "FlatFace"
sketch13.AttachmentOffset = App.Placement(App.Vector(0, 0, 42), App.Rotation())
sketch13.addGeometry([
    Part.LineSegment(App.Vector(-16, 6, 0), App.Vector(-16, 140, 0)),
    Part.ArcOfCircle(Part.Circle(App.Vector(-22, 140, 0), App.Vector(0, 0, 1), 6), math.radians(0), math.radians(90)),
    Part.LineSegment(App.Vector(-22, 146, 0), App.Vector(-93, 146, 0)),
    Part.ArcOfCircle(Part.Circle(App.Vector(-93, 140, 0), App.Vector(0, 0, 1), 6), math.radians(90), math.radians(180)),
    Part.LineSegment(App.Vector(-99, 140, 0), App.Vector(-99, 6, 0)),
    Part.ArcOfCircle(Part.Circle(App.Vector(-93, 6, 0), App.Vector(0, 0, 1), 6), math.radians(180), math.radians(270)),
    Part.LineSegment(App.Vector(-93, 0, 0), App.Vector(-22, 0, 0)),
    Part.ArcOfCircle(Part.Circle(App.Vector(-22, 6, 0), App.Vector(0, 0, 1), 6), math.radians(-90), math.radians(0)),
    Part.Circle(App.Vector(-92, 6, 0), App.Vector(0, 0, 1), 5),
    Part.Circle(App.Vector(-22, 6, 0), App.Vector(0, 0, 1), 5),
    Part.Circle(App.Vector(-92, 140, 0), App.Vector(0, 0, 1), 5),
    Part.Circle(App.Vector(-22, 140, 0), App.Vector(0, 0, 1), 5),
], False)
sketch13.addConstraint([
    Sketcher.Constraint("Tangent", 0, 2, 1, 1),
    Sketcher.Constraint("Tangent", 1, 2, 2, 1),
    Sketcher.Constraint("Tangent", 2, 2, 3, 1),
    Sketcher.Constraint("Tangent", 3, 2, 4, 1),
    Sketcher.Constraint("Tangent", 4, 2, 5, 1),
    Sketcher.Constraint("Tangent", 5, 2, 6, 1),
    Sketcher.Constraint("Tangent", 6, 2, 7, 1),
    Sketcher.Constraint("Tangent", 7, 2, 0, 1),
    Sketcher.Constraint("Vertical", 0),
    Sketcher.Constraint("Horizontal", 2),
    Sketcher.Constraint("Vertical", 4),
    Sketcher.Constraint("Horizontal", 6),
    Sketcher.Constraint("Equal", 1, 3),
    Sketcher.Constraint("Equal", 3, 5),
    Sketcher.Constraint("Equal", 5, 7),
    Sketcher.Constraint("Equal", 8, 9),
    Sketcher.Constraint("Equal", 9, 10),
    Sketcher.Constraint("Equal", 10, 11),
    Sketcher.Constraint("PointOnObject", 5, 2, -1),
    Sketcher.Constraint("Horizontal", 8, 3, 9, 3),
    Sketcher.Constraint("Horizontal", 10, 3, 11, 3),
    Sketcher.Constraint("Vertical", 8, 3, 10, 3),
    Sketcher.Constraint("Vertical", 9, 3, 11, 3),
    Sketcher.Constraint("Diameter", 8, 10.0),
    Sketcher.Constraint("Radius", 1, 6.0),
    Sketcher.Constraint("DistanceX", 2, 2, 2, 1, 71.0),
    Sketcher.Constraint("DistanceY", 0, 1, 0, 2, 134.0),
    Sketcher.Constraint("DistanceX", 1, 3, -1, 1, 22.0),
    Sketcher.Constraint("DistanceX", 8, 3, 9, 3, 70.0),
    Sketcher.Constraint("DistanceY", 8, 3, 10, 3, 133.0),
    Sketcher.Constraint("DistanceX", 8, 3, -1, 1, 92.5),
    Sketcher.Constraint("DistanceY", -1, 1, 8, 3, 6.5),
])
pad8 = body2.newObject("PartDesign::Pad", "Pad007")
pad8.Profile = sketch13
pad8.Length = 4

sketch14 = body2.newObject("Sketcher::SketchObject", "Sketch013")
sketch14.AttachmentSupport = (doc.getObject("XY_Plane001"), [""])
sketch14.MapMode = "FlatFace"
sketch14.AttachmentOffset = App.Placement(App.Vector(0, 0, 42), App.Rotation())
sketch14.addGeometry([
    Part.Circle(App.Vector(-22.5, 139.5, 0), App.Vector(0, 0, 1), 5),
    Part.Circle(App.Vector(-22.5, 139.5, 0), App.Vector(0, 0, 1), 3),
    Part.Circle(App.Vector(-92.5, 139.5, 0), App.Vector(0, 0, 1), 5),
    Part.Circle(App.Vector(-92.5, 139.5, 0), App.Vector(0, 0, 1), 3),
    Part.Circle(App.Vector(-22.5, 6.5, 0), App.Vector(0, 0, 1), 5),
    Part.Circle(App.Vector(-22.5, 6.5, 0), App.Vector(0, 0, 1), 3),
    Part.Circle(App.Vector(-92.5, 6.5, 0), App.Vector(0, 0, 1), 5),
    Part.Circle(App.Vector(-92.5, 6.5, 0), App.Vector(0, 0, 1), 3),
], False)
sketch14.addConstraint([
    Sketcher.Constraint("Coincident", 1, 3, 0, 3),
    Sketcher.Constraint("Coincident", 3, 3, 2, 3),
    Sketcher.Constraint("Coincident", 5, 3, 4, 3),
    Sketcher.Constraint("Coincident", 7, 3, 6, 3),
    Sketcher.Constraint("Equal", 0, 2),
    Sketcher.Constraint("Equal", 1, 3),
    Sketcher.Constraint("Equal", 2, 4),
    Sketcher.Constraint("Equal", 3, 5),
    Sketcher.Constraint("Equal", 4, 6),
    Sketcher.Constraint("Equal", 5, 7),
    Sketcher.Constraint("Horizontal", 1, 3, 2, 3),
    Sketcher.Constraint("Horizontal", 5, 3, 6, 3),
    Sketcher.Constraint("Vertical", 1, 3, 4, 3),
    Sketcher.Constraint("Vertical", 3, 3, 6, 3),
    Sketcher.Constraint("Diameter", 0, 10.0),
    Sketcher.Constraint("DistanceX", 2, 3, 0, 3, 70.0),
    Sketcher.Constraint("DistanceY", 4, 3, 0, 3, 133.0),
    Sketcher.Constraint("DistanceX", 0, 3, -1, 1, 22.5),
    Sketcher.Constraint("DistanceY", -1, 1, 0, 3, 139.5),
    Sketcher.Constraint("Diameter", 1, 5.995087),
])
pad9 = body2.newObject("PartDesign::Pad", "Pad008")
pad9.Profile = sketch14
pad9.Length = 2

doc.recompute()
